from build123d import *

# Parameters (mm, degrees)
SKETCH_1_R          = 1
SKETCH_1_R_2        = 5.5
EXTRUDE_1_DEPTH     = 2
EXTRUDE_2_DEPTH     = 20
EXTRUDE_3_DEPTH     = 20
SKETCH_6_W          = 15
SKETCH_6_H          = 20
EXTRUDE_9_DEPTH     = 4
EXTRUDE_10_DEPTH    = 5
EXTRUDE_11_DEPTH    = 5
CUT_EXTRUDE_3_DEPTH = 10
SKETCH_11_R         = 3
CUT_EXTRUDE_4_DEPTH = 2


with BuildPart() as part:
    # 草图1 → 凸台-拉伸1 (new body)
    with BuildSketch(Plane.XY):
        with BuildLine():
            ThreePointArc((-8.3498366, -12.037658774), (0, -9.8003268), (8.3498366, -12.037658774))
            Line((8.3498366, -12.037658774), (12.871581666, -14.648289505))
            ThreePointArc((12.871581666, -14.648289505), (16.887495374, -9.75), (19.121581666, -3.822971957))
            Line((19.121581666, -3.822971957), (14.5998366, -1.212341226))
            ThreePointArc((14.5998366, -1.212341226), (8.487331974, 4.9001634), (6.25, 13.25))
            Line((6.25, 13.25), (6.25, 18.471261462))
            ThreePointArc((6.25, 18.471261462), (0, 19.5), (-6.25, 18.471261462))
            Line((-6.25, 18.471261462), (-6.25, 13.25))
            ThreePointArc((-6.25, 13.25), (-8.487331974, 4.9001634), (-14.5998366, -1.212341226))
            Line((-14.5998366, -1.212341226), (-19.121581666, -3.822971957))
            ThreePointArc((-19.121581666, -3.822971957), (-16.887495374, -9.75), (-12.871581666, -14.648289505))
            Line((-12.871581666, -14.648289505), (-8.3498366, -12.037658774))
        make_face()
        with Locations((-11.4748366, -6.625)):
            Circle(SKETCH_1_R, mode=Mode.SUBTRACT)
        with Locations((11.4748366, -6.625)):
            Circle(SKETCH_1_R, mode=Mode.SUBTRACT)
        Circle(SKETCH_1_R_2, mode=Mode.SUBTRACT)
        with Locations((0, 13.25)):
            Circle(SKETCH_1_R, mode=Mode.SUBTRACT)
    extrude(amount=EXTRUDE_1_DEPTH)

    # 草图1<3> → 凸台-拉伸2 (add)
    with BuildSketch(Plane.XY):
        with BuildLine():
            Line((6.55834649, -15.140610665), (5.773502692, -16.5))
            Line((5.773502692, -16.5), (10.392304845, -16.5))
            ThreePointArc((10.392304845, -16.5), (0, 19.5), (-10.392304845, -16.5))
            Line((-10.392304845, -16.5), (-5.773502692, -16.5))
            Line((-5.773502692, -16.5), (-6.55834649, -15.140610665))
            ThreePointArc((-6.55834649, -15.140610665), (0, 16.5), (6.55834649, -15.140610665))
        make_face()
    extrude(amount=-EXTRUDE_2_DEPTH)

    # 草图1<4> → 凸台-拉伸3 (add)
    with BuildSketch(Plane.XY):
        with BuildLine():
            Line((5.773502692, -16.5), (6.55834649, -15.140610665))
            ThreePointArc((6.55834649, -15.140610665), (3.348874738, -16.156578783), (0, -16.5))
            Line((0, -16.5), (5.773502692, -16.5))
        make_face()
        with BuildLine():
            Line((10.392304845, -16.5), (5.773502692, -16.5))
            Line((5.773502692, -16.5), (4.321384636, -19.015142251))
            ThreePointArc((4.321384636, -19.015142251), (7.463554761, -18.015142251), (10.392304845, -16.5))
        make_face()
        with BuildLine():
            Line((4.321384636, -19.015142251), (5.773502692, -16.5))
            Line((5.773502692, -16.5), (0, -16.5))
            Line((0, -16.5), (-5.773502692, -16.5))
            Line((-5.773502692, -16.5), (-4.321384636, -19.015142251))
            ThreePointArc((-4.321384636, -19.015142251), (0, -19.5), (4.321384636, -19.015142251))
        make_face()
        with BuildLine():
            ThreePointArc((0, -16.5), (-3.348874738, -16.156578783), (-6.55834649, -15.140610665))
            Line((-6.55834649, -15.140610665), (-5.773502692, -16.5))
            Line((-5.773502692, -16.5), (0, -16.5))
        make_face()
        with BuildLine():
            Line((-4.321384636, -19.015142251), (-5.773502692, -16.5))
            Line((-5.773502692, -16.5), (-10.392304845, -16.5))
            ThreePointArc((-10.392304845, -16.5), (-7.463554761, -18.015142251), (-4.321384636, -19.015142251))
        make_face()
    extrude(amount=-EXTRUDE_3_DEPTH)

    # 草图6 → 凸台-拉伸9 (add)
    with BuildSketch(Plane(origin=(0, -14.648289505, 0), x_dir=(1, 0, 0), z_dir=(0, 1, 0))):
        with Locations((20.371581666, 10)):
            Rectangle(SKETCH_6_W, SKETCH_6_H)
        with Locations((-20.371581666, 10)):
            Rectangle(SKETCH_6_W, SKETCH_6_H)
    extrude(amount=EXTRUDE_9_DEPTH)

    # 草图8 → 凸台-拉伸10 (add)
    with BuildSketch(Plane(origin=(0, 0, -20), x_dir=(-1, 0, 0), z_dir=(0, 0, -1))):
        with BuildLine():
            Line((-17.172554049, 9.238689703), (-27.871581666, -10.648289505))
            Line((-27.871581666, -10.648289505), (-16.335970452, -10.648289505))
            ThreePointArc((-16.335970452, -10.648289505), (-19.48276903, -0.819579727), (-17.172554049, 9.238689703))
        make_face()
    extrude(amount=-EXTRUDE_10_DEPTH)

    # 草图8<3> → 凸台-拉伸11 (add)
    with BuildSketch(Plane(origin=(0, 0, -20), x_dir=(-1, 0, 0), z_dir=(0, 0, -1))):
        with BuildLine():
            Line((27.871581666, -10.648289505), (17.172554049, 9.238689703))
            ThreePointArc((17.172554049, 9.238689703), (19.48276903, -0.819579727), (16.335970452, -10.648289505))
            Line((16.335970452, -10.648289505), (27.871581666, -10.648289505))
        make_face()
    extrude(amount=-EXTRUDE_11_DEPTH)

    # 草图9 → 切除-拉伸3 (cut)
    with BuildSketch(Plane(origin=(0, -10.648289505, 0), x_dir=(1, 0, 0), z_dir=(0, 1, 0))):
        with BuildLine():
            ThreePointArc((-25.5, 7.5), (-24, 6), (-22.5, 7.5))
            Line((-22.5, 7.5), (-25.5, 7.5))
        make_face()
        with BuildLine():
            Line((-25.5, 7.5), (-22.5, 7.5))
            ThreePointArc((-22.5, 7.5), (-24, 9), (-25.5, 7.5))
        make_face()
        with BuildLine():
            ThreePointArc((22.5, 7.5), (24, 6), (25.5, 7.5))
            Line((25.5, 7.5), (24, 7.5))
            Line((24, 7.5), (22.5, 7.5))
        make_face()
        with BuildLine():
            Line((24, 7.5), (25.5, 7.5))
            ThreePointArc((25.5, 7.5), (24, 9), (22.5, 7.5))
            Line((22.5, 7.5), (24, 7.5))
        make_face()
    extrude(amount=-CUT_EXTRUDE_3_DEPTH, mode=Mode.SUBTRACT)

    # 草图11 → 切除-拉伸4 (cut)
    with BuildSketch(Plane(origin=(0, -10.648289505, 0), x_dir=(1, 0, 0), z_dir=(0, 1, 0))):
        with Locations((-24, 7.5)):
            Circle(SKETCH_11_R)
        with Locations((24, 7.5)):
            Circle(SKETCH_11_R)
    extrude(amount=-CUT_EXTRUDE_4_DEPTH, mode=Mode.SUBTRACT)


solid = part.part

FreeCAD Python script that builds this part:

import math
import FreeCAD as App
import Part
import Sketcher
from FreeCAD import Vector
Q = App.Units.Quantity


def add_polygon(sketch, points):
    """Adds a closed chain of lines whose ends are joined by coincident constraints."""
    first, n = sketch.GeometryCount, len(points)
    for a, b in zip(points, points[1:] + points[:1]):
        sketch.addGeometry(Part.LineSegment(App.Vector(*a, 0), App.Vector(*b, 0)), False)
    for i in range(n):
        sketch.addConstraint(Sketcher.Constraint("Coincident", first + i, 2, first + (i + 1) % n, 1))

doc = App.newDocument("Part")
body = doc.addObject("PartDesign::Body", "Body")

sketch1 = body.newObject("Sketcher::SketchObject", "Sketch")
sketch1.AttachmentSupport = (doc.getObject("XY_Plane"), [""])
sketch1.MapMode = "FlatFace"
sketch1.addGeometry(Part.ArcOfCircle(Part.Circle(Vector(0, -26.5, 0), Vector(0, 0, 1), 16.7), math.radians(60), math.radians(120)), False)
sketch1.addGeometry(Part.LineSegment(Vector(8.3, -12, 0), Vector(12.9, -14.6, 0)), False)
sketch1.addGeometry(Part.ArcOfCircle(Part.Circle(Vector(0, 0, 0), Vector(0, 0, 1), 19.5), math.radians(-49), math.radians(-11)), False)
sketch1.addGeometry(Part.LineSegment(Vector(19.1, -3.8, 0), Vector(14.6, -1.2, 0)), False)
sketch1.addGeometry(Part.ArcOfCircle(Part.Circle(Vector(22.9, 13.2, 0), Vector(0, 0, 1), 16.7), math.radians(180), math.radians(240)), False)
sketch1.addGeometry(Part.LineSegment(Vector(6.2, 13.2, 0), Vector(6.2, 18.5, 0)), False)
sketch1.addGeometry(Part.ArcOfCircle(Part.Circle(Vector(0, 0, 0), Vector(0, 0, 1), 19.5), math.radians(71), math.radians(109)), False)
sketch1.addGeometry(Part.LineSegment(Vector(-6.2, 18.5, 0), Vector(-6.2, 13.2, 0)), False)
sketch1.addGeometry(Part.ArcOfCircle(Part.Circle(Vector(-22.9, 13.2, 0), Vector(0, 0, 1), 16.7), math.radians(-60), math.radians(0)), False)
sketch1.addGeometry(Part.LineSegment(Vector(-14.6, -1.2, 0), Vector(-19.1, -3.8, 0)), False)
sketch1.addGeometry(Part.ArcOfCircle(Part.Circle(Vector(0, 0, 0), Vector(0, 0, 1), 19.5), math.radians(-169), math.radians(-131)), False)
sketch1.addGeometry(Part.LineSegment(Vector(-12.9, -14.6, 0), Vector(-8.3, -12, 0)), False)
sketch1.addGeometry(Part.Circle(Vector(-11.5, -6.6, 0), Vector(0, 0, 1), 1), False)
sketch1.addGeometry(Part.Circle(Vector(11.5, -6.6, 0), Vector(0, 0, 1), 1), False)
sketch1.addGeometry(Part.Circle(Vector(0, 0, 0), Vector(0, 0, 1), 5.5), False)
sketch1.addGeometry(Part.Circle(Vector(0, 13.2, 0), Vector(0, 0, 1), 1), False)
sketch1.addConstraint(Sketcher.Constraint("Tangent", 0, 1, 1, 1))
sketch1.addConstraint(Sketcher.Constraint("Coincident", 1, 2, 2, 1))
sketch1.addConstraint(Sketcher.Constraint("Coincident", 2, 2, 3, 1))
sketch1.addConstraint(Sketcher.Constraint("Tangent", 3, 2, 4, 2))
sketch1.addConstraint(Sketcher.Constraint("Tangent", 4, 1, 5, 1))
sketch1.addConstraint(Sketcher.Constraint("Coincident", 5, 2, 6, 1))
sketch1.addConstraint(Sketcher.Constraint("Coincident", 6, 2, 7, 1))
sketch1.addConstraint(Sketcher.Constraint("Tangent", 7, 2, 8, 2))
sketch1.addConstraint(Sketcher.Constraint("Tangent", 8, 1, 9, 1))
sketch1.addConstraint(Sketcher.Constraint("Coincident", 9, 2, 10, 1))
sketch1.addConstraint(Sketcher.Constraint("Coincident", 10, 2, 11, 1))
sketch1.addConstraint(Sketcher.Constraint("Tangent", 11, 2, 0, 2))
sketch1.addConstraint(Sketcher.Constraint("Vertical", 5))
sketch1.addConstraint(Sketcher.Constraint("Vertical", 7))
sketch1.addConstraint(Sketcher.Constraint("Coincident", 2, 3, -1, 1))
sketch1.addConstraint(Sketcher.Constraint("Coincident", 6, 3, -1, 1))
sketch1.addConstraint(Sketcher.Constraint("Coincident", 10, 3, -1, 1))
sketch1.addConstraint(Sketcher.Constraint("Coincident", 14, 3, -1, 1))
sketch1.addConstraint(Sketcher.Constraint("Equal", 0, 4))
sketch1.addConstraint(Sketcher.Constraint("Equal", 2, 6))
sketch1.addConstraint(Sketcher.Constraint("Equal", 4, 8))
sketch1.addConstraint(Sketcher.Constraint("Equal", 6, 10))
sketch1.addConstraint(Sketcher.Constraint("Equal", 12, 13))
sketch1.addConstraint(Sketcher.Constraint("Equal", 13, 15))
sketch1.addConstraint(Sketcher.Constraint("Symmetric", 4, 3, 8, 3, -2))
sketch1.addConstraint(Sketcher.Constraint("Symmetric", 12, 3, 13, 3, -2))
sketch1.addConstraint(Sketcher.Constraint("Symmetric", 0, 1, 11, 2, -2))
sketch1.addConstraint(Sketcher.Constraint("PointOnObject", 15, 3, -2))
sketch1.addConstraint(Sketcher.Constraint("Parallel", 1, 3))
sketch1.addConstraint(Sketcher.Constraint("Parallel", 9, 11))
sketch1.addConstraint(Sketcher.Constraint("Horizontal", 8, 3, 15, 3))
sketch1.addConstraint(Sketcher.Constraint("Equal", 1, 3))
sketch1.addConstraint(Sketcher.Constraint("Diameter", 12, 2.0))
sketch1.addConstraint(Sketcher.Constraint("Diameter", 14, 11.0))
sketch1.addConstraint(Sketcher.Constraint("Radius", 2, 19.5))
sketch1.addConstraint(Sketcher.Constraint("Angle", 1, Q("-30 deg")))
sketch1.addConstraint(Sketcher.Constraint("DistanceY", 0, 3, -1, 1, 26.5))
sketch1.addConstraint(Sketcher.Constraint("DistanceX", 6, 2, 5, 2, 12.5))
sketch1.addConstraint(Sketcher.Constraint("DistanceY", -1, 1, 4, 3, 13.25))
sketch1.addConstraint(Sketcher.Constraint("DistanceY", 12, 3, -1, 1, 6.625))
sketch1.addConstraint(Sketcher.Constraint("DistanceX", 0, 1, 13, 3, 3.125))
pad1 = body.newObject("PartDesign::Pad", "Pad")
pad1.Profile = sketch1
pad1.Length = 2

sketch2 = body.newObject("Sketcher::SketchObject", "Sketch001")
sketch2.AttachmentSupport = (doc.getObject("XY_Plane"), [""])
sketch2.MapMode = "FlatFace"
sketch2.addGeometry(Part.LineSegment(Vector(6.6, -15.1, 0), Vector(5.8, -16.5, 0)), False)
sketch2.addGeometry(Part.LineSegment(Vector(5.8, -16.5, 0), Vector(10.4, -16.5, 0)), False)
sketch2.addGeometry(Part.ArcOfCircle(Part.Circle(Vector(0, 0, 0), Vector(0, 0, 1), 19.5), math.radians(-58), math.radians(238)), False)
sketch2.addGeometry(Part.LineSegment(Vector(-10.4, -16.5, 0), Vector(-5.8, -16.5, 0)), False)
sketch2.addGeometry(Part.LineSegment(Vector(-5.8, -16.5, 0), Vector(-6.6, -15.1, 0)), False)
sketch2.addGeometry(Part.ArcOfCircle(Part.Circle(Vector(0, 0, 0), Vector(0, 0, 1), 16.5), math.radians(-67), math.radians(247)), False)
sketch2.addConstraint(Sketcher.Constraint("Coincident", 0, 2, 1, 1))
sketch2.addConstraint(Sketcher.Constraint("Coincident", 1, 2, 2, 1))
sketch2.addConstraint(Sketcher.Constraint("Coincident", 2, 2, 3, 1))
sketch2.addConstraint(Sketcher.Constraint("Coincident", 3, 2, 4, 1))
sketch2.addConstraint(Sketcher.Constraint("Coincident", 4, 2, 5, 2))
sketch2.addConstraint(Sketcher.Constraint("Coincident", 5, 1, 0, 1))
sketch2.addConstraint(Sketcher.Constraint("Horizontal", 1))
sketch2.addConstraint(Sketcher.Constraint("Horizontal", 3))
sketch2.addConstraint(Sketcher.Constraint("Coincident", 2, 3, -1, 1))
sketch2.addConstraint(Sketcher.Constraint("Coincident", 5, 3, -1, 1))
sketch2.addConstraint(Sketcher.Constraint("Symmetric", 0, 2, 3, 2, -2))
sketch2.addConstraint(Sketcher.Constraint("Horizontal", 4, 2, 5, 1))
sketch2.addConstraint(Sketcher.Constraint("Radius", 2, 19.5))
sketch2.addConstraint(Sketcher.Constraint("Radius", 5, 16.5))
sketch2.addConstraint(Sketcher.Constraint("Angle", 0, Q("-120 deg")))
sketch2.addConstraint(Sketcher.Constraint("DistanceY", 0, 2, -1, 1, 16.5))
sketch2.addConstraint(Sketcher.Constraint("DistanceX", 1, 1, 1, 2, 4.618802))
pad2 = body.newObject("PartDesign::Pad", "Pad001")
pad2.Profile = sketch2
pad2.Length = 20
pad2.Reversed = True

sketch3 = body.newObject("Sketcher::SketchObject", "Sketch002")
sketch3.AttachmentSupport = (doc.getObject("XY_Plane"), [""])
sketch3.MapMode = "FlatFace"
sketch3.addGeometry(Part.LineSegment(Vector(5.8, -16.5, 0), Vector(6.6, -15.1, 0)), False)
sketch3.addGeometry(Part.ArcOfCircle(Part.Circle(Vector(0, 0, 0), Vector(0, 0, 1), 16.5), math.radians(-90), math.radians(-67)), False)
sketch3.addGeometry(Part.ArcOfCircle(Part.Circle(Vector(0, 0, 0), Vector(0, 0, 1), 16.5), math.radians(-113), math.radians(-90)), False)
sketch3.addGeometry(Part.LineSegment(Vector(-6.6, -15.1, 0), Vector(-5.8, -16.5, 0)), False)
sketch3.addGeometry(Part.LineSegment(Vector(-5.8, -16.5, 0), Vector(-10.4, -16.5, 0)), False)
sketch3.addGeometry(Part.ArcOfCircle(Part.Circle(Vector(0, 0, 0), Vector(0, 0, 1), 19.5), math.radians(-122.2), math.radians(-102.8)), False)
sketch3.addGeometry(Part.ArcOfCircle(Part.Circle(Vector(0, 0, 0), Vector(0, 0, 1), 19.5), math.radians(-103), math.radians(-77)), False)
sketch3.addGeometry(Part.ArcOfCircle(Part.Circle(Vector(0, 0, 0), Vector(0, 0, 1), 19.5), math.radians(-77.2), math.radians(-57.8)), False)
sketch3.addGeometry(Part.LineSegment(Vector(10.4, -16.5, 0), Vector(5.8, -16.5, 0)), False)
sketch3.addConstraint(Sketcher.Constraint("Coincident", 0, 2, 1, 2))
sketch3.addConstraint(Sketcher.Constraint("Tangent", 1, 1, 2, 2))
sketch3.addConstraint(Sketcher.Constraint("Coincident", 2, 1, 3, 1))
sketch3.addConstraint(Sketcher.Constraint("Coincident", 3, 2, 4, 1))
sketch3.addConstraint(Sketcher.Constraint("Coincident", 4, 2, 5, 1))
sketch3.addConstraint(Sketcher.Constraint("Tangent", 5, 2, 6, 1))
sketch3.addConstraint(Sketcher.Constraint("Tangent", 6, 2, 7, 1))
sketch3.addConstraint(Sketcher.Constraint("Coincident", 7, 2, 8, 1))
sketch3.addConstraint(Sketcher.Constraint("Coincident", 8, 2, 0, 1))
sketch3.addConstraint(Sketcher.Constraint("Horizontal", 4))
sketch3.addConstraint(Sketcher.Constraint("Horizontal", 8))
sketch3.addConstraint(Sketcher.Constraint("Coincident", 1, 3, -1, 1))
sketch3.addConstraint(Sketcher.Constraint("Coincident", 5, 3, -1, 1))
sketch3.addConstraint(Sketcher.Constraint("Coincident", 7, 3, -1, 1))
sketch3.addConstraint(Sketcher.Constraint("Equal", 1, 2))
sketch3.addConstraint(Sketcher.Constraint("Symmetric", 3, 2, 8, 2, -2))
sketch3.addConstraint(Sketcher.Constraint("PointOnObject", 1, 1, -2))
sketch3.addConstraint(Sketcher.Constraint("Horizontal", 0, 2, 2, 1))
sketch3.addConstraint(Sketcher.Constraint("Horizontal", 1, 1, 3, 2))
sketch3.addConstraint(Sketcher.Constraint("Horizontal", 5, 2, 6, 2))
sketch3.addConstraint(Sketcher.Constraint("Radius", 1, 16.5))
sketch3.addConstraint(Sketcher.Constraint("Radius", 5, 19.5))
sketch3.addConstraint(Sketcher.Constraint("Angle", 0, Q("60 deg")))
sketch3.addConstraint(Sketcher.Constraint("DistanceX", 4, 2, 4, 1, 4.618802))
sketch3.addConstraint(Sketcher.Constraint("DistanceX", 3, 2, 5, 2, 1.452118))
pad3 = body.newObject("PartDesign::Pad", "Pad002")
pad3.Profile = sketch3
pad3.Length = 20
pad3.Reversed = True

sketch4 = body.newObject("Sketcher::SketchObject", "Sketch003")
sketch4.AttachmentSupport = (doc.getObject("XZ_Plane"), [""])
sketch4.MapMode = "FlatFace"
sketch4.AttachmentOffset = App.Placement(Vector(0, 0, 14.64829), App.Rotation())
add_polygon(sketch4, [(13, -20), (13, 0), (28, 0), (28, -20)])
add_polygon(sketch4, [(-28, -20), (-28, 0), (-13, 0), (-13, -20)])
sketch4.addConstraint(Sketcher.Constraint("Vertical", 0))
sketch4.addConstraint(Sketcher.Constraint("Horizontal", 1))
sketch4.addConstraint(Sketcher.Constraint("Vertical", 2))
sketch4.addConstraint(Sketcher.Constraint("Horizontal", 3))
sketch4.addConstraint(Sketcher.Constraint("Vertical", 4))
sketch4.addConstraint(Sketcher.Constraint("Horizontal", 5))
sketch4.addConstraint(Sketcher.Constraint("Vertical", 6))
sketch4.addConstraint(Sketcher.Constraint("Horizontal", 7))
sketch4.addConstraint(Sketcher.Constraint("Symmetric", 1, 2, 4, 2, -1, 1))
sketch4.addConstraint(Sketcher.Constraint("Symmetric", 0, 2, 5, 2, -2))
sketch4.addConstraint(Sketcher.Constraint("Horizontal", 3, 2, 6, 2))
sketch4.addConstraint(Sketcher.Constraint("DistanceX", 1, 1, 1, 2, 15.0))
sketch4.addConstraint(Sketcher.Constraint("DistanceY", 0, 1, 0, 2, 20.0))
sketch4.addConstraint(Sketcher.Constraint("DistanceX", -1, 1, 0, 2, 12.871582))
pad4 = body.newObject("PartDesign::Pad", "Pad003")
pad4.Profile = sketch4
pad4.Length = 4
pad4.Reversed = True

sketch5 = body.newObject("Sketcher::SketchObject", "Sketch004")
sketch5.AttachmentSupport = (doc.getObject("XY_Plane"), [""])
sketch5.MapMode = "FlatFace"
sketch5.AttachmentOffset = App.Placement(Vector(0, 0, -20), App.Rotation())
sketch5.addGeometry(Part.LineSegment(Vector(17, 9, 0), Vector(28, -11, 0)), False)
sketch5.addGeometry(Part.LineSegment(Vector(28, -11, 0), Vector(16, -11, 0)), False)
sketch5.addGeometry(Part.ArcOfCircle(Part.Circle(Vector(0, 0, 0), Vector(0, 0, 1), 19), math.radians(-33), math.radians(28)), False)
sketch5.addConstraint(Sketcher.Constraint("Coincident", 0, 2, 1, 1))
sketch5.addConstraint(Sketcher.Constraint("Coincident", 1, 2, 2, 1))
sketch5.addConstraint(Sketcher.Constraint("Tangent", 2, 2, 0, 1))
sketch5.addConstraint(Sketcher.Constraint("Horizontal", 1))
sketch5.addConstraint(Sketcher.Constraint("Coincident", 2, 3, -1, 1))
sketch5.addConstraint(Sketcher.Constraint("Radius", 2, 19.5))
sketch5.addConstraint(Sketcher.Constraint("DistanceX", 1, 2, 1, 1, 11.535611))
sketch5.addConstraint(Sketcher.Constraint("Distance", 0, 22.582319))
pad5 = body.newObject("PartDesign::Pad", "Pad004")
pad5.Profile = sketch5
pad5.Length = 5

sketch6 = body.newObject("Sketcher::SketchObject", "Sketch005")
sketch6.AttachmentSupport = (doc.getObject("XY_Plane"), [""])
sketch6.MapMode = "FlatFace"
sketch6.AttachmentOffset = App.Placement(Vector(0, 0, -20), App.Rotation())
sketch6.addGeometry(Part.LineSegment(Vector(-28, -11, 0), Vector(-17, 9, 0)), False)
sketch6.addGeometry(Part.ArcOfCircle(Part.Circle(Vector(0, 0, 0), Vector(0, 0, 1), 19), math.radians(152), math.radians(213)), False)
sketch6.addGeometry(Part.LineSegment(Vector(-16, -11, 0), Vector(-28, -11, 0)), False)
sketch6.addConstraint(Sketcher.Constraint("Tangent", 0, 2, 1, 1))
sketch6.addConstraint(Sketcher.Constraint("Coincident", 1, 2, 2, 1))
sketch6.addConstraint(Sketcher.Constraint("Coincident", 2, 2, 0, 1))
sketch6.addConstraint(Sketcher.Constraint("Horizontal", 2))
sketch6.addConstraint(Sketcher.Constraint("Coincident", 1, 3, -1, 1))
sketch6.addConstraint(Sketcher.Constraint("Radius", 1, 19.5))
sketch6.addConstraint(Sketcher.Constraint("DistanceX", 2, 2, 2, 1, 11.535611))
sketch6.addConstraint(Sketcher.Constraint("Distance", 0, 22.582319))
pad6 = body.newObject("PartDesign::Pad", "Pad005")
pad6.Profile = sketch6
pad6.Length = 5

sketch7 = body.newObject("Sketcher::SketchObject", "Sketch006")
sketch7.AttachmentSupport = (doc.getObject("XZ_Plane"), [""])
sketch7.MapMode = "FlatFace"
sketch7.AttachmentOffset = App.Placement(Vector(0, 0, 10.64829), App.Rotation())
sketch7.addGeometry(Part.Circle(Vector(-24, -7.5, 0), Vector(0, 0, 1), 1.5), False)
sketch7.addGeometry(Part.Circle(Vector(24, -7.5, 0), Vector(0, 0, 1), 1.5), False)
sketch7.addConstraint(Sketcher.Constraint("Equal", 0, 1))
sketch7.addConstraint(Sketcher.Constraint("Symmetric", 0, 3, 1, 3, -2))
sketch7.addConstraint(Sketcher.Constraint("Diameter", 0, 3.0))
sketch7.addConstraint(Sketcher.Constraint("DistanceX", 0, 3, -1, 1, 24.0))
sketch7.addConstraint(Sketcher.Constraint("DistanceY", 0, 3, -1, 1, 7.5))
pocket1 = body.newObject("PartDesign::Pocket", "Pocket")
pocket1.Profile = sketch7
pocket1.Length = 10
pocket1.Reversed = True

sketch8 = body.newObject("Sketcher::SketchObject", "Sketch007")
sketch8.AttachmentSupport = (doc.getObject("XZ_Plane"), [""])
sketch8.MapMode = "FlatFace"
sketch8.AttachmentOffset = App.Placement(Vector(0, 0, 10.64829), App.Rotation())
sketch8.addGeometry(Part.Circle(Vector(-24, -7.5, 0), Vector(0, 0, 1), 3), False)
sketch8.addGeometry(Part.Circle(Vector(24, -7.5, 0), Vector(0, 0, 1), 3), False)
sketch8.addConstraint(Sketcher.Constraint("Equal", 0, 1))
sketch8.addConstraint(Sketcher.Constraint("Symmetric", 0, 3, 1, 3, -2))
sketch8.addConstraint(Sketcher.Constraint("Diameter", 0, 6.0))
sketch8.addConstraint(Sketcher.Constraint("DistanceX", 0, 3, -1, 1, 24.0))
sketch8.addConstraint(Sketcher.Constraint("DistanceY", 0, 3, -1, 1, 7.5))
pocket2 = body.newObject("PartDesign::Pocket", "Pocket001")
pocket2.Profile = sketch8
pocket2.Length = 2
pocket2.Reversed = True

doc.recompute()
